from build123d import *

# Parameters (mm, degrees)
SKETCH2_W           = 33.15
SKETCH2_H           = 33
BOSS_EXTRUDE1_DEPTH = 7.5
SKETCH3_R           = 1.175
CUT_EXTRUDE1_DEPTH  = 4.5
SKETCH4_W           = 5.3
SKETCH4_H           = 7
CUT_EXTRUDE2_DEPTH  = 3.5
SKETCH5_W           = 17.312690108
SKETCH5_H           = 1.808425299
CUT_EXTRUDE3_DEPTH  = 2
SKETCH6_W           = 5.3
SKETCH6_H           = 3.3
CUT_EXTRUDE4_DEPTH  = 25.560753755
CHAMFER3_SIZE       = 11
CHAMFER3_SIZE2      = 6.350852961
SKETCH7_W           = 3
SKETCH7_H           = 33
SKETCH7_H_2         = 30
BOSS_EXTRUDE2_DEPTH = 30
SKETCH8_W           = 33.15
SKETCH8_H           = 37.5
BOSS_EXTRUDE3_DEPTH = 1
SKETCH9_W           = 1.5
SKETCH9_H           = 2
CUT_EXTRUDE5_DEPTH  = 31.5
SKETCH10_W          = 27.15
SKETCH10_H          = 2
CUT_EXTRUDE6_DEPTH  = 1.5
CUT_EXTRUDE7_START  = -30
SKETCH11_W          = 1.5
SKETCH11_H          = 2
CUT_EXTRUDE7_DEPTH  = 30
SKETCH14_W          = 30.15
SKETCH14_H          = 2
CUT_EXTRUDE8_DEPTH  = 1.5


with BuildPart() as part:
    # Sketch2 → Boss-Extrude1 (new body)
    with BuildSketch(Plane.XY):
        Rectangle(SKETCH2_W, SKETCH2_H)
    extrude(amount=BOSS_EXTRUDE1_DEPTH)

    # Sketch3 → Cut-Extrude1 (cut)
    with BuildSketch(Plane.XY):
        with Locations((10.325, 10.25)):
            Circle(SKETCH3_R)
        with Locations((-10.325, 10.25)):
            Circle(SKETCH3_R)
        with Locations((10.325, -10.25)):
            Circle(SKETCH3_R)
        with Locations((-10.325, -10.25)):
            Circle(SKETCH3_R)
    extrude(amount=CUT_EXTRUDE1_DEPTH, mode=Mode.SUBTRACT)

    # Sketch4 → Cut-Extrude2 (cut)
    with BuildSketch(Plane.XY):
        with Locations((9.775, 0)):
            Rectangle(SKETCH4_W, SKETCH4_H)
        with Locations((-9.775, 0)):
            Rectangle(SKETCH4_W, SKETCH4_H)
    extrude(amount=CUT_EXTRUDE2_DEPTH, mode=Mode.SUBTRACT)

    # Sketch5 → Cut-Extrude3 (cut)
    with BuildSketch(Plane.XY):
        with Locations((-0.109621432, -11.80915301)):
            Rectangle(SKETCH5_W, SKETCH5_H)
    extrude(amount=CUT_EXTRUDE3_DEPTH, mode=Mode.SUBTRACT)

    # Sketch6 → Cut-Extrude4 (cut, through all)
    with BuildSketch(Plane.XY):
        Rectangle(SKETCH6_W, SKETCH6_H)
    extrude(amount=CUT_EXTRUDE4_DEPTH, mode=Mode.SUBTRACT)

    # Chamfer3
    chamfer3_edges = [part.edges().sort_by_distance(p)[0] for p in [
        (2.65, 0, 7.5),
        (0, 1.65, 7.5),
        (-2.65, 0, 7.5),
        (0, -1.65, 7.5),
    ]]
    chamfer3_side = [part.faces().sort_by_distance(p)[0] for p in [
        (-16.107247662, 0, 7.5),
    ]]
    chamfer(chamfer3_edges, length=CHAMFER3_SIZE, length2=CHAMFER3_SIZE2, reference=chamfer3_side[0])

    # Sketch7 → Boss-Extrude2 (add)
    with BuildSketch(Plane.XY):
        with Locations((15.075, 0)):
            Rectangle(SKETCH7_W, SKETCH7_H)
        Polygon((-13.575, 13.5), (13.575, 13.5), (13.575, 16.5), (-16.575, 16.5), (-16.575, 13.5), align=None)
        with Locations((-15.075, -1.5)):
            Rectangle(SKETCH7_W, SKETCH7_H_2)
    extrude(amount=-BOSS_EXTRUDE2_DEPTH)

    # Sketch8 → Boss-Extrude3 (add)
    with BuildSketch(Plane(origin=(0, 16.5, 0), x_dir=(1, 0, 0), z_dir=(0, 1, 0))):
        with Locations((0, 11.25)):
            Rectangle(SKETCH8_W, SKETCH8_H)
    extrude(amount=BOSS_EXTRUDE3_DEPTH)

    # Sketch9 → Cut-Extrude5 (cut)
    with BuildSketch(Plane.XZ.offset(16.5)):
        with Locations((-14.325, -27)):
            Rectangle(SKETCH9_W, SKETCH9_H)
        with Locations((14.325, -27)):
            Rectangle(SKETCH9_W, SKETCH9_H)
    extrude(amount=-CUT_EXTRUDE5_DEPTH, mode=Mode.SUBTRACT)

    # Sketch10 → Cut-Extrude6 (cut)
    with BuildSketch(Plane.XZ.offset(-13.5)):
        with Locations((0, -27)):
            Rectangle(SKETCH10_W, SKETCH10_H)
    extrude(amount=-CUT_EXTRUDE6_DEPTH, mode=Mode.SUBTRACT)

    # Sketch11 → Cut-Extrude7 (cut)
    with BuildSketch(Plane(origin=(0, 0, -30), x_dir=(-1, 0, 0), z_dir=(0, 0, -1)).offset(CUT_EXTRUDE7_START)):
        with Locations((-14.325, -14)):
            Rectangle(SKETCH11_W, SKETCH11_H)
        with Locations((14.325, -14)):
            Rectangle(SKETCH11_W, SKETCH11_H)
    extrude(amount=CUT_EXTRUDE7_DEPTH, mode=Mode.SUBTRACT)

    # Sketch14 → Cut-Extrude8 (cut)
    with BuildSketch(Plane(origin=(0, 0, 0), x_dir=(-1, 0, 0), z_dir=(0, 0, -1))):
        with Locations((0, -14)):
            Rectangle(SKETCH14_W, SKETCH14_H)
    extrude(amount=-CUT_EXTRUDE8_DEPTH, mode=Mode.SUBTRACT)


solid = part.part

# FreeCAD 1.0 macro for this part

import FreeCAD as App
import Part
import Sketcher
from FreeCAD import Vector


def edges_at(feature, points):
    """Names of the edges that pass closest to the given points."""
    edges = feature.Shape.Edges
    near = lambda p: min(range(len(edges)), key=lambda i: edges[i].distToShape(Part.Vertex(*p))[0])
    return sorted({f"Edge{near(p) + 1}" for p in points})

doc = App.newDocument("Part")
params = doc.addObject("Spreadsheet::Sheet", "Params")
for row, (alias, value) in enumerate([
    ("sketch1_height", "33 mm"),
    ("sketch1_width", "33.15 mm"),
    ("pad1_length", "7.5 mm"),
    ("sketch2_diameter", "2.35 mm"),
    ("pocket1_length", "4.5 mm"),
    ("sketch3_height", "7 mm"),
    ("sketch3_width", "5.3 mm"),
    ("pocket2_length", "3.5 mm"),
    ("pocket3_length", "2 mm"),
    ("sketch5_width", "5.3 mm"),
    ("sketch5_height", "3.3 mm"),
    ("chamfer_size", "11 mm"),
    ("chamfer_size2", "6.350853 mm"),
    ("sketch6_width", "3 mm"),
    ("sketch6_height", "30 mm"),
    ("sketch6_height2", "33 mm"),
    ("sketch6_width2", "33.15 mm"),
    ("pad2_length", "30 mm"),
    ("sketch7_height", "37.5 mm"),
    ("sketch7_width", "33.15 mm"),
    ("pad3_length", "1 mm"),
    ("sketch8_height", "2 mm"),
    ("sketch8_width", "1.5 mm"),
    ("pocket5_length", "31.5 mm"),
    ("sketch9_height", "2 mm"),
    ("sketch9_width", "27.15 mm"),
    ("pocket6_length", "1.5 mm"),
    ("sketch10_height", "2 mm"),
    ("sketch10_width", "1.5 mm"),
    ("pocket7_length", "30 mm"),
    ("sketch11_height", "2 mm"),
    ("sketch11_width", "30.15 mm"),
    ("pocket8_length", "1.5 mm"),
], start=1):
    params.set(f"A{row}", alias)
    params.set(f"B{row}", "=" + value)
    params.setAlias(f"B{row}", alias)

body = doc.addObject("PartDesign::Body", "Body")

# Sketch on XY plane
sketch1 = body.newObject("Sketcher::SketchObject", "Sketch")
sketch1.AttachmentSupport = (doc.getObject("XY_Plane"), [""])
sketch1.MapMode = "FlatFace"
sketch1.addGeometry([
    Part.LineSegment(Vector(-17, 16, 0), Vector(-17, -16, 0)),
    Part.LineSegment(Vector(-17, -16, 0), Vector(17, -16, 0)),
    Part.LineSegment(Vector(17, -16, 0), Vector(17, 16, 0)),
    Part.LineSegment(Vector(17, 16, 0), Vector(-17, 16, 0)),
], False)
sketch1.addConstraint([
    Sketcher.Constraint("Coincident", 0, 2, 1, 1),
    Sketcher.Constraint("Coincident", 1, 2, 2, 1),
    Sketcher.Constraint("Coincident", 2, 2, 3, 1),
    Sketcher.Constraint("Coincident", 3, 2, 0, 1),
    Sketcher.Constraint("Vertical", 0),
    Sketcher.Constraint("Horizontal", 1),
    Sketcher.Constraint("Vertical", 2),
    Sketcher.Constraint("Horizontal", 3),
    Sketcher.Constraint("Symmetric", 0, 2, 2, 2, -1, 1),
    Sketcher.Constraint("DistanceY", 0, 2, 0, 1, 33.0),
    Sketcher.Constraint("DistanceX", 1, 1, 1, 2, 33.15),
])
sketch1.setExpression("Constraints[9]", "Params.sketch1_height")
sketch1.setExpression("Constraints[10]", "Params.sketch1_width")
pad1 = body.newObject("PartDesign::Pad", "Pad")
pad1.Profile = sketch1
pad1.setExpression("Length", "Params.pad1_length")

# Sketch on XY plane
sketch2 = body.newObject("Sketcher::SketchObject", "Sketch001")
sketch2.AttachmentSupport = (doc.getObject("XY_Plane"), [""])
sketch2.MapMode = "FlatFace"
sketch2.addGeometry([
    Part.Circle(Vector(10.3, 10.2, 0), Vector(0, 0, 1), 1.2),
    Part.Circle(Vector(-10.3, 10.2, 0), Vector(0, 0, 1), 1.2),
    Part.Circle(Vector(10.3, -10.2, 0), Vector(0, 0, 1), 1.2),
    Part.Circle(Vector(-10.3, -10.2, 0), Vector(0, 0, 1), 1.2),
], False)
sketch2.addConstraint([
    Sketcher.Constraint("Equal", 0, 1),
    Sketcher.Constraint("Equal", 1, 2),
    Sketcher.Constraint("Equal", 2, 3),
    Sketcher.Constraint("Symmetric", 1, 3, 2, 3, -1, 1),
    Sketcher.Constraint("Symmetric", 0, 3, 3, 3, -1, 1),
    Sketcher.Constraint("Symmetric", 0, 3, 1, 3, -2),
    Sketcher.Constraint("Diameter", 0, 2.35),
    Sketcher.Constraint("DistanceY", 2, 3, 0, 3, 20.5),
    Sketcher.Constraint("DistanceX", 1, 3, 0, 3, 20.65),
])
sketch2.setExpression("Constraints[6]", "Params.sketch2_diameter")
pocket1 = body.newObject("PartDesign::Pocket", "Pocket")
pocket1.Profile = sketch2
pocket1.setExpression("Length", "Params.pocket1_length")
pocket1.Reversed = True

# Sketch on XY plane
sketch3 = body.newObject("Sketcher::SketchObject", "Sketch002")
sketch3.AttachmentSupport = (doc.getObject("XY_Plane"), [""])
sketch3.MapMode = "FlatFace"
sketch3.addGeometry([
    Part.LineSegment(Vector(7, 4, 0), Vector(7, -4, 0)),  # 0
    Part.LineSegment(Vector(7, -4, 0), Vector(12, -4, 0)),  # 1
    Part.LineSegment(Vector(12, -4, 0), Vector(12, 4, 0)),  # 2
    Part.LineSegment(Vector(12, 4, 0), Vector(7, 4, 0)),  # 3
    Part.LineSegment(Vector(-12, 4, 0), Vector(-12, -4, 0)),  # 4
    Part.LineSegment(Vector(-12, -4, 0), Vector(-7, -4, 0)),  # 5
    Part.LineSegment(Vector(-7, -4, 0), Vector(-7, 4, 0)),  # 6
    Part.LineSegment(Vector(-7, 4, 0), Vector(-12, 4, 0)),  # 7
], False)
sketch3.addConstraint([
    Sketcher.Constraint("Coincident", 0, 2, 1, 1),
    Sketcher.Constraint("Coincident", 1, 2, 2, 1),
    Sketcher.Constraint("Coincident", 2, 2, 3, 1),
    Sketcher.Constraint("Coincident", 3, 2, 0, 1),
    Sketcher.Constraint("Coincident", 4, 2, 5, 1),
    Sketcher.Constraint("Coincident", 5, 2, 6, 1),
    Sketcher.Constraint("Coincident", 6, 2, 7, 1),
    Sketcher.Constraint("Coincident", 7, 2, 4, 1),
    Sketcher.Constraint("Vertical", 0),
    Sketcher.Constraint("Horizontal", 1),
    Sketcher.Constraint("Vertical", 2),
    Sketcher.Constraint("Horizontal", 3),
    Sketcher.Constraint("Vertical", 4),
    Sketcher.Constraint("Horizontal", 5),
    Sketcher.Constraint("Vertical", 6),
    Sketcher.Constraint("Horizontal", 7),
    Sketcher.Constraint("Symmetric", 2, 2, 4, 2, -1, 1),
    Sketcher.Constraint("Symmetric", 0, 2, 6, 2, -1, 1),
    Sketcher.Constraint("Horizontal", 1, 2, 4, 2),
    Sketcher.Constraint("DistanceY", 0, 2, 0, 1, 7.0),
    Sketcher.Constraint("DistanceX", 1, 1, 1, 2, 5.3),
    Sketcher.Constraint("DistanceX", 4, 2, 0, 2, 19.55),
])
sketch3.setExpression("Constraints[19]", "Params.sketch3_height")
sketch3.setExpression("Constraints[20]", "Params.sketch3_width")
pocket2 = body.newObject("PartDesign::Pocket", "Pocket001")
pocket2.Profile = sketch3
pocket2.setExpression("Length", "Params.pocket2_length")
pocket2.Reversed = True

# Sketch on XY plane
sketch4 = body.newObject("Sketcher::SketchObject", "Sketch003")
sketch4.AttachmentSupport = (doc.getObject("XY_Plane"), [""])
sketch4.MapMode = "FlatFace"
sketch4.addGeometry([
    Part.LineSegment(Vector(-8.8, -10.9, 0), Vector(-8.8, -12.7, 0)),
    Part.LineSegment(Vector(-8.8, -12.7, 0), Vector(8.5, -12.7, 0)),
    Part.LineSegment(Vector(8.5, -12.7, 0), Vector(8.5, -10.9, 0)),
    Part.LineSegment(Vector(8.5, -10.9, 0), Vector(-8.8, -10.9, 0)),
], False)
sketch4.addConstraint([
    Sketcher.Constraint("Coincident", 0, 2, 1, 1),
    Sketcher.Constraint("Coincident", 1, 2, 2, 1),
    Sketcher.Constraint("Coincident", 2, 2, 3, 1),
    Sketcher.Constraint("Coincident", 3, 2, 0, 1),
    Sketcher.Constraint("Vertical", 0),
    Sketcher.Constraint("Horizontal", 1),
    Sketcher.Constraint("Vertical", 2),
    Sketcher.Constraint("Horizontal", 3),
    Sketcher.Constraint("DistanceX", 1, 1, 1, 2, 17.31269),
    Sketcher.Constraint("DistanceY", 0, 2, 0, 1, 1.808425),
    Sketcher.Constraint("DistanceY", 2, 2, -1, 1, 10.90494),
    Sketcher.Constraint("DistanceX", 0, 2, -1, 1, 8.765966),
])
pocket3 = body.newObject("PartDesign::Pocket", "Pocket002")
pocket3.Profile = sketch4
pocket3.setExpression("Length", "Params.pocket3_length")
pocket3.Reversed = True

# Sketch on XY plane
sketch5 = body.newObject("Sketcher::SketchObject", "Sketch004")
sketch5.AttachmentSupport = (doc.getObject("XY_Plane"), [""])
sketch5.MapMode = "FlatFace"
sketch5.addGeometry([
    Part.LineSegment(Vector(-2.6, 1.6, 0), Vector(-2.6, -1.6, 0)),
    Part.LineSegment(Vector(-2.6, -1.6, 0), Vector(2.6, -1.6, 0)),
    Part.LineSegment(Vector(2.6, -1.6, 0), Vector(2.6, 1.6, 0)),
    Part.LineSegment(Vector(2.6, 1.6, 0), Vector(-2.6, 1.6, 0)),
], False)
sketch5.addConstraint([
    Sketcher.Constraint("Coincident", 0, 2, 1, 1),
    Sketcher.Constraint("Coincident", 1, 2, 2, 1),
    Sketcher.Constraint("Coincident", 2, 2, 3, 1),
    Sketcher.Constraint("Coincident", 3, 2, 0, 1),
    Sketcher.Constraint("Vertical", 0),
    Sketcher.Constraint("Horizontal", 1),
    Sketcher.Constraint("Vertical", 2),
    Sketcher.Constraint("Horizontal", 3),
    Sketcher.Constraint("Symmetric", 0, 2, 2, 2, -1, 1),
    Sketcher.Constraint("DistanceX", 1, 1, 1, 2, 5.3),
    Sketcher.Constraint("DistanceY", 0, 2, 0, 1, 3.3),
])
sketch5.setExpression("Constraints[9]", "Params.sketch5_width")
sketch5.setExpression("Constraints[10]", "Params.sketch5_height")
pocket4 = body.newObject("PartDesign::Pocket", "Pocket003")
pocket4.Profile = sketch5
pocket4.Type = "ThroughAll"
pocket4.Reversed = True
doc.recompute()

chamfer = body.newObject("PartDesign::Chamfer", "Chamfer")
chamfer.Base = (pocket4, edges_at(pocket4, [
    (2.65, 0, 7.5),
    (0, 1.65, 7.5),
    (-2.65, 0, 7.5),
    (0, -1.65, 7.5),
]))
chamfer.ChamferType = "Two distances"
chamfer.setExpression("Size", "Params.chamfer_size")
chamfer.setExpression("Size2", "Params.chamfer_size2")

# Sketch on XY plane
sketch6 = body.newObject("Sketcher::SketchObject", "Sketch005")
sketch6.AttachmentSupport = (doc.getObject("XY_Plane"), [""])
sketch6.MapMode = "FlatFace"
sketch6.addGeometry([
    Part.LineSegment(Vector(13.6, 13.5, 0), Vector(13.6, -16.5, 0)),  # 0
    Part.LineSegment(Vector(13.6, -16.5, 0), Vector(16.6, -16.5, 0)),  # 1
    Part.LineSegment(Vector(16.6, -16.5, 0), Vector(16.6, 16.5, 0)),  # 2
    Part.LineSegment(Vector(16.6, 16.5, 0), Vector(-16.6, 16.5, 0)),  # 3
    Part.LineSegment(Vector(-16.6, 16.5, 0), Vector(-16.6, -16.5, 0)),  # 4
    Part.LineSegment(Vector(-16.6, -16.5, 0), Vector(-13.6, -16.5, 0)),  # 5
    Part.LineSegment(Vector(-13.6, -16.5, 0), Vector(-13.6, 13.5, 0)),  # 6
    Part.LineSegment(Vector(-13.6, 13.5, 0), Vector(13.6, 13.5, 0)),  # 7
], False)
sketch6.addConstraint([
    Sketcher.Constraint("Coincident", 0, 2, 1, 1),
    Sketcher.Constraint("Coincident", 1, 2, 2, 1),
    Sketcher.Constraint("Coincident", 2, 2, 3, 1),
    Sketcher.Constraint("Coincident", 3, 2, 4, 1),
    Sketcher.Constraint("Coincident", 4, 2, 5, 1),
    Sketcher.Constraint("Coincident", 5, 2, 6, 1),
    Sketcher.Constraint("Coincident", 6, 2, 7, 1),
    Sketcher.Constraint("Coincident", 7, 2, 0, 1),
    Sketcher.Constraint("Vertical", 0),
    Sketcher.Constraint("Horizontal", 1),
    Sketcher.Constraint("Vertical", 2),
    Sketcher.Constraint("Horizontal", 3),
    Sketcher.Constraint("Vertical", 4),
    Sketcher.Constraint("Horizontal", 5),
    Sketcher.Constraint("Vertical", 6),
    Sketcher.Constraint("Horizontal", 7),
    Sketcher.Constraint("Symmetric", 1, 2, 3, 2, -1, 1),
    Sketcher.Constraint("Symmetric", 0, 2, 5, 2, -2),
    Sketcher.Constraint("DistanceX", 1, 1, 1, 2, 3.0),
    Sketcher.Constraint("DistanceY", 0, 2, 0, 1, 30.0),
    Sketcher.Constraint("DistanceY", 2, 1, 2, 2, 33.0),
    Sketcher.Constraint("DistanceX", 3, 2, 3, 1, 33.15),
])
sketch6.setExpression("Constraints[18]", "Params.sketch6_width")
sketch6.setExpression("Constraints[19]", "Params.sketch6_height")
sketch6.setExpression("Constraints[20]", "Params.sketch6_height2")
sketch6.setExpression("Constraints[21]", "Params.sketch6_width2")
pad2 = body.newObject("PartDesign::Pad", "Pad001")
pad2.Profile = sketch6
pad2.setExpression("Length", "Params.pad2_length")
pad2.Reversed = True

# Sketch on XZ plane
sketch7 = body.newObject("Sketcher::SketchObject", "Sketch006")
sketch7.AttachmentSupport = (doc.getObject("XZ_Plane"), [""])
sketch7.MapMode = "FlatFace"
sketch7.AttachmentOffset = App.Placement(Vector(0, 0, -16.5), App.Rotation())
sketch7.addGeometry([
    Part.LineSegment(Vector(-17, -30, 0), Vector(-17, 8, 0)),
    Part.LineSegment(Vector(-17, 8, 0), Vector(17, 8, 0)),
    Part.LineSegment(Vector(17, 8, 0), Vector(17, -30, 0)),
    Part.LineSegment(Vector(17, -30, 0), Vector(-17, -30, 0)),
], False)
sketch7.addConstraint([
    Sketcher.Constraint("Coincident", 0, 2, 1, 1),
    Sketcher.Constraint("Coincident", 1, 2, 2, 1),
    Sketcher.Constraint("Coincident", 2, 2, 3, 1),
    Sketcher.Constraint("Coincident", 3, 2, 0, 1),
    Sketcher.Constraint("Vertical", 0),
    Sketcher.Constraint("Horizontal", 1),
    Sketcher.Constraint("Vertical", 2),
    Sketcher.Constraint("Horizontal", 3),
    Sketcher.Constraint("DistanceY", 0, 1, 0, 2, 37.5),
    Sketcher.Constraint("DistanceY", 2, 2, -1, 1, 30.0),
    Sketcher.Constraint("DistanceX", 1, 1, 1, 2, 33.15),
    Sketcher.Constraint("DistanceX", 0, 2, -1, 1, 16.575),
])
sketch7.setExpression("Constraints[8]", "Params.sketch7_height")
sketch7.setExpression("Constraints[10]", "Params.sketch7_width")
pad3 = body.newObject("PartDesign::Pad", "Pad002")
pad3.Profile = sketch7
pad3.setExpression("Length", "Params.pad3_length")
pad3.Reversed = True

# Sketch on XZ plane
sketch8 = body.newObject("Sketcher::SketchObject", "Sketch007")
sketch8.AttachmentSupport = (doc.getObject("XZ_Plane"), [""])
sketch8.MapMode = "FlatFace"
sketch8.AttachmentOffset = App.Placement(Vector(0, 0, 16.5), App.Rotation())
sketch8.addGeometry([
    Part.LineSegment(Vector(-15.1, -26, 0), Vector(-15.1, -28, 0)),  # 0
    Part.LineSegment(Vector(-15.1, -28, 0), Vector(-13.6, -28, 0)),  # 1
    Part.LineSegment(Vector(-13.6, -28, 0), Vector(-13.6, -26, 0)),  # 2
    Part.LineSegment(Vector(-13.6, -26, 0), Vector(-15.1, -26, 0)),  # 3
    Part.LineSegment(Vector(13.6, -26, 0), Vector(13.6, -28, 0)),  # 4
    Part.LineSegment(Vector(13.6, -28, 0), Vector(15.1, -28, 0)),  # 5
    Part.LineSegment(Vector(15.1, -28, 0), Vector(15.1, -26, 0)),  # 6
    Part.LineSegment(Vector(15.1, -26, 0), Vector(13.6, -26, 0)),  # 7
], False)
sketch8.addConstraint([
    Sketcher.Constraint("Coincident", 0, 2, 1, 1),
    Sketcher.Constraint("Coincident", 1, 2, 2, 1),
    Sketcher.Constraint("Coincident", 2, 2, 3, 1),
    Sketcher.Constraint("Coincident", 3, 2, 0, 1),
    Sketcher.Constraint("Coincident", 4, 2, 5, 1),
    Sketcher.Constraint("Coincident", 5, 2, 6, 1),
    Sketcher.Constraint("Coincident", 6, 2, 7, 1),
    Sketcher.Constraint("Coincident", 7, 2, 4, 1),
    Sketcher.Constraint("Vertical", 0),
    Sketcher.Constraint("Horizontal", 1),
    Sketcher.Constraint("Vertical", 2),
    Sketcher.Constraint("Horizontal", 3),
    Sketcher.Constraint("Vertical", 4),
    Sketcher.Constraint("Horizontal", 5),
    Sketcher.Constraint("Vertical", 6),
    Sketcher.Constraint("Horizontal", 7),
    Sketcher.Constraint("Symmetric", 1, 2, 4, 2, -2),
    Sketcher.Constraint("Symmetric", 3, 2, 6, 2, -2),
    Sketcher.Constraint("DistanceY", 0, 2, 0, 1, 2.0),
    Sketcher.Constraint("DistanceX", 1, 1, 1, 2, 1.5),
    Sketcher.Constraint("DistanceY", 0, 2, -1, 1, 28.0),
    Sketcher.Constraint("DistanceX", 1, 2, 4, 2, 27.15),
])
sketch8.setExpression("Constraints[18]", "Params.sketch8_height")
sketch8.setExpression("Constraints[19]", "Params.sketch8_width")
pocket5 = body.newObject("PartDesign::Pocket", "Pocket004")
pocket5.Profile = sketch8
pocket5.setExpression("Length", "Params.pocket5_length")

# Sketch on XZ plane
sketch9 = body.newObject("Sketcher::SketchObject", "Sketch008")
sketch9.AttachmentSupport = (doc.getObject("XZ_Plane"), [""])
sketch9.MapMode = "FlatFace"
sketch9.AttachmentOffset = App.Placement(Vector(0, 0, -13.5), App.Rotation())
sketch9.addGeometry([
    Part.LineSegment(Vector(-13.6, -26, 0), Vector(-13.6, -28, 0)),
    Part.LineSegment(Vector(-13.6, -28, 0), Vector(13.6, -28, 0)),
    Part.LineSegment(Vector(13.6, -28, 0), Vector(13.6, -26, 0)),
    Part.LineSegment(Vector(13.6, -26, 0), Vector(-13.6, -26, 0)),
], False)
sketch9.addConstraint([
    Sketcher.Constraint("Coincident", 0, 2, 1, 1),
    Sketcher.Constraint("Coincident", 1, 2, 2, 1),
    Sketcher.Constraint("Coincident", 2, 2, 3, 1),
    Sketcher.Constraint("Coincident", 3, 2, 0, 1),
    Sketcher.Constraint("Vertical", 0),
    Sketcher.Constraint("Horizontal", 1),
    Sketcher.Constraint("Vertical", 2),
    Sketcher.Constraint("Horizontal", 3),
    Sketcher.Constraint("DistanceY", 0, 2, 0, 1, 2.0),
    Sketcher.Constraint("DistanceY", 0, 2, -1, 1, 28.0),
    Sketcher.Constraint("DistanceX", 1, 1, 1, 2, 27.15),
    Sketcher.Constraint("DistanceX", 0, 2, -1, 1, 13.575),
])
sketch9.setExpression("Constraints[8]", "Params.sketch9_height")
sketch9.setExpression("Constraints[10]", "Params.sketch9_width")
pocket6 = body.newObject("PartDesign::Pocket", "Pocket005")
pocket6.Profile = sketch9
pocket6.setExpression("Length", "Params.pocket6_length")

# Sketch on XY plane
sketch10 = body.newObject("Sketcher::SketchObject", "Sketch009")
sketch10.AttachmentSupport = (doc.getObject("XY_Plane"), [""])
sketch10.MapMode = "FlatFace"
sketch10.addGeometry([
    Part.LineSegment(Vector(15.1, -13, 0), Vector(15.1, -15, 0)),  # 0
    Part.LineSegment(Vector(15.1, -15, 0), Vector(13.6, -15, 0)),  # 1
    Part.LineSegment(Vector(13.6, -15, 0), Vector(13.6, -13, 0)),  # 2
    Part.LineSegment(Vector(13.6, -13, 0), Vector(15.1, -13, 0)),  # 3
    Part.LineSegment(Vector(-13.6, -13, 0), Vector(-13.6, -15, 0)),  # 4
    Part.LineSegment(Vector(-13.6, -15, 0), Vector(-15.1, -15, 0)),  # 5
    Part.LineSegment(Vector(-15.1, -15, 0), Vector(-15.1, -13, 0)),  # 6
    Part.LineSegment(Vector(-15.1, -13, 0), Vector(-13.6, -13, 0)),  # 7
], False)
sketch10.addConstraint([
    Sketcher.Constraint("Coincident", 0, 2, 1, 1),
    Sketcher.Constraint("Coincident", 1, 2, 2, 1),
    Sketcher.Constraint("Coincident", 2, 2, 3, 1),
    Sketcher.Constraint("Coincident", 3, 2, 0, 1),
    Sketcher.Constraint("Coincident", 4, 2, 5, 1),
    Sketcher.Constraint("Coincident", 5, 2, 6, 1),
    Sketcher.Constraint("Coincident", 6, 2, 7, 1),
    Sketcher.Constraint("Coincident", 7, 2, 4, 1),
    Sketcher.Constraint("Vertical", 0),
    Sketcher.Constraint("Horizontal", 1),
    Sketcher.Constraint("Vertical", 2),
    Sketcher.Constraint("Horizontal", 3),
    Sketcher.Constraint("Vertical", 4),
    Sketcher.Constraint("Horizontal", 5),
    Sketcher.Constraint("Vertical", 6),
    Sketcher.Constraint("Horizontal", 7),
    Sketcher.Constraint("Symmetric", 1, 2, 4, 2, -2),
    Sketcher.Constraint("Symmetric", 3, 2, 6, 2, -2),
    Sketcher.Constraint("DistanceY", 0, 2, 0, 1, 2.0),
    Sketcher.Constraint("DistanceX", 1, 2, 1, 1, 1.5),
    Sketcher.Constraint("DistanceY", 0, 2, -1, 1, 15.0),
    Sketcher.Constraint("DistanceX", 4, 2, 1, 2, 27.15),
])
sketch10.setExpression("Constraints[18]", "Params.sketch10_height")
sketch10.setExpression("Constraints[19]", "Params.sketch10_width")
pocket7 = body.newObject("PartDesign::Pocket", "Pocket006")
pocket7.Profile = sketch10
pocket7.setExpression("Length", "Params.pocket7_length")

# Sketch on XY plane
sketch11 = body.newObject("Sketcher::SketchObject", "Sketch010")
sketch11.AttachmentSupport = (doc.getObject("XY_Plane"), [""])
sketch11.MapMode = "FlatFace"
sketch11.addGeometry([
    Part.LineSegment(Vector(15.1, -13, 0), Vector(15.1, -15, 0)),
    Part.LineSegment(Vector(15.1, -15, 0), Vector(-15.1, -15, 0)),
    Part.LineSegment(Vector(-15.1, -15, 0), Vector(-15.1, -13, 0)),
    Part.LineSegment(Vector(-15.1, -13, 0), Vector(15.1, -13, 0)),
], False)
sketch11.addConstraint([
    Sketcher.Constraint("Coincident", 0, 2, 1, 1),
    Sketcher.Constraint("Coincident", 1, 2, 2, 1),
    Sketcher.Constraint("Coincident", 2, 2, 3, 1),
    Sketcher.Constraint("Coincident", 3, 2, 0, 1),
    Sketcher.Constraint("Vertical", 0),
    Sketcher.Constraint("Horizontal", 1),
    Sketcher.Constraint("Vertical", 2),
    Sketcher.Constraint("Horizontal", 3),
    Sketcher.Constraint("DistanceY", 0, 2, 0, 1, 2.0),
    Sketcher.Constraint("DistanceY", 0, 2, -1, 1, 15.0),
    Sketcher.Constraint("DistanceX", 1, 2, 1, 1, 30.15),
    Sketcher.Constraint("DistanceX", -1, 1, 0, 2, 15.075),
])
sketch11.setExpression("Constraints[8]", "Params.sketch11_height")
sketch11.setExpression("Constraints[10]", "Params.sketch11_width")
pocket8 = body.newObject("PartDesign::Pocket", "Pocket007")
pocket8.Profile = sketch11
pocket8.setExpression("Length", "Params.pocket8_length")
pocket8.Reversed = True

doc.recompute()
